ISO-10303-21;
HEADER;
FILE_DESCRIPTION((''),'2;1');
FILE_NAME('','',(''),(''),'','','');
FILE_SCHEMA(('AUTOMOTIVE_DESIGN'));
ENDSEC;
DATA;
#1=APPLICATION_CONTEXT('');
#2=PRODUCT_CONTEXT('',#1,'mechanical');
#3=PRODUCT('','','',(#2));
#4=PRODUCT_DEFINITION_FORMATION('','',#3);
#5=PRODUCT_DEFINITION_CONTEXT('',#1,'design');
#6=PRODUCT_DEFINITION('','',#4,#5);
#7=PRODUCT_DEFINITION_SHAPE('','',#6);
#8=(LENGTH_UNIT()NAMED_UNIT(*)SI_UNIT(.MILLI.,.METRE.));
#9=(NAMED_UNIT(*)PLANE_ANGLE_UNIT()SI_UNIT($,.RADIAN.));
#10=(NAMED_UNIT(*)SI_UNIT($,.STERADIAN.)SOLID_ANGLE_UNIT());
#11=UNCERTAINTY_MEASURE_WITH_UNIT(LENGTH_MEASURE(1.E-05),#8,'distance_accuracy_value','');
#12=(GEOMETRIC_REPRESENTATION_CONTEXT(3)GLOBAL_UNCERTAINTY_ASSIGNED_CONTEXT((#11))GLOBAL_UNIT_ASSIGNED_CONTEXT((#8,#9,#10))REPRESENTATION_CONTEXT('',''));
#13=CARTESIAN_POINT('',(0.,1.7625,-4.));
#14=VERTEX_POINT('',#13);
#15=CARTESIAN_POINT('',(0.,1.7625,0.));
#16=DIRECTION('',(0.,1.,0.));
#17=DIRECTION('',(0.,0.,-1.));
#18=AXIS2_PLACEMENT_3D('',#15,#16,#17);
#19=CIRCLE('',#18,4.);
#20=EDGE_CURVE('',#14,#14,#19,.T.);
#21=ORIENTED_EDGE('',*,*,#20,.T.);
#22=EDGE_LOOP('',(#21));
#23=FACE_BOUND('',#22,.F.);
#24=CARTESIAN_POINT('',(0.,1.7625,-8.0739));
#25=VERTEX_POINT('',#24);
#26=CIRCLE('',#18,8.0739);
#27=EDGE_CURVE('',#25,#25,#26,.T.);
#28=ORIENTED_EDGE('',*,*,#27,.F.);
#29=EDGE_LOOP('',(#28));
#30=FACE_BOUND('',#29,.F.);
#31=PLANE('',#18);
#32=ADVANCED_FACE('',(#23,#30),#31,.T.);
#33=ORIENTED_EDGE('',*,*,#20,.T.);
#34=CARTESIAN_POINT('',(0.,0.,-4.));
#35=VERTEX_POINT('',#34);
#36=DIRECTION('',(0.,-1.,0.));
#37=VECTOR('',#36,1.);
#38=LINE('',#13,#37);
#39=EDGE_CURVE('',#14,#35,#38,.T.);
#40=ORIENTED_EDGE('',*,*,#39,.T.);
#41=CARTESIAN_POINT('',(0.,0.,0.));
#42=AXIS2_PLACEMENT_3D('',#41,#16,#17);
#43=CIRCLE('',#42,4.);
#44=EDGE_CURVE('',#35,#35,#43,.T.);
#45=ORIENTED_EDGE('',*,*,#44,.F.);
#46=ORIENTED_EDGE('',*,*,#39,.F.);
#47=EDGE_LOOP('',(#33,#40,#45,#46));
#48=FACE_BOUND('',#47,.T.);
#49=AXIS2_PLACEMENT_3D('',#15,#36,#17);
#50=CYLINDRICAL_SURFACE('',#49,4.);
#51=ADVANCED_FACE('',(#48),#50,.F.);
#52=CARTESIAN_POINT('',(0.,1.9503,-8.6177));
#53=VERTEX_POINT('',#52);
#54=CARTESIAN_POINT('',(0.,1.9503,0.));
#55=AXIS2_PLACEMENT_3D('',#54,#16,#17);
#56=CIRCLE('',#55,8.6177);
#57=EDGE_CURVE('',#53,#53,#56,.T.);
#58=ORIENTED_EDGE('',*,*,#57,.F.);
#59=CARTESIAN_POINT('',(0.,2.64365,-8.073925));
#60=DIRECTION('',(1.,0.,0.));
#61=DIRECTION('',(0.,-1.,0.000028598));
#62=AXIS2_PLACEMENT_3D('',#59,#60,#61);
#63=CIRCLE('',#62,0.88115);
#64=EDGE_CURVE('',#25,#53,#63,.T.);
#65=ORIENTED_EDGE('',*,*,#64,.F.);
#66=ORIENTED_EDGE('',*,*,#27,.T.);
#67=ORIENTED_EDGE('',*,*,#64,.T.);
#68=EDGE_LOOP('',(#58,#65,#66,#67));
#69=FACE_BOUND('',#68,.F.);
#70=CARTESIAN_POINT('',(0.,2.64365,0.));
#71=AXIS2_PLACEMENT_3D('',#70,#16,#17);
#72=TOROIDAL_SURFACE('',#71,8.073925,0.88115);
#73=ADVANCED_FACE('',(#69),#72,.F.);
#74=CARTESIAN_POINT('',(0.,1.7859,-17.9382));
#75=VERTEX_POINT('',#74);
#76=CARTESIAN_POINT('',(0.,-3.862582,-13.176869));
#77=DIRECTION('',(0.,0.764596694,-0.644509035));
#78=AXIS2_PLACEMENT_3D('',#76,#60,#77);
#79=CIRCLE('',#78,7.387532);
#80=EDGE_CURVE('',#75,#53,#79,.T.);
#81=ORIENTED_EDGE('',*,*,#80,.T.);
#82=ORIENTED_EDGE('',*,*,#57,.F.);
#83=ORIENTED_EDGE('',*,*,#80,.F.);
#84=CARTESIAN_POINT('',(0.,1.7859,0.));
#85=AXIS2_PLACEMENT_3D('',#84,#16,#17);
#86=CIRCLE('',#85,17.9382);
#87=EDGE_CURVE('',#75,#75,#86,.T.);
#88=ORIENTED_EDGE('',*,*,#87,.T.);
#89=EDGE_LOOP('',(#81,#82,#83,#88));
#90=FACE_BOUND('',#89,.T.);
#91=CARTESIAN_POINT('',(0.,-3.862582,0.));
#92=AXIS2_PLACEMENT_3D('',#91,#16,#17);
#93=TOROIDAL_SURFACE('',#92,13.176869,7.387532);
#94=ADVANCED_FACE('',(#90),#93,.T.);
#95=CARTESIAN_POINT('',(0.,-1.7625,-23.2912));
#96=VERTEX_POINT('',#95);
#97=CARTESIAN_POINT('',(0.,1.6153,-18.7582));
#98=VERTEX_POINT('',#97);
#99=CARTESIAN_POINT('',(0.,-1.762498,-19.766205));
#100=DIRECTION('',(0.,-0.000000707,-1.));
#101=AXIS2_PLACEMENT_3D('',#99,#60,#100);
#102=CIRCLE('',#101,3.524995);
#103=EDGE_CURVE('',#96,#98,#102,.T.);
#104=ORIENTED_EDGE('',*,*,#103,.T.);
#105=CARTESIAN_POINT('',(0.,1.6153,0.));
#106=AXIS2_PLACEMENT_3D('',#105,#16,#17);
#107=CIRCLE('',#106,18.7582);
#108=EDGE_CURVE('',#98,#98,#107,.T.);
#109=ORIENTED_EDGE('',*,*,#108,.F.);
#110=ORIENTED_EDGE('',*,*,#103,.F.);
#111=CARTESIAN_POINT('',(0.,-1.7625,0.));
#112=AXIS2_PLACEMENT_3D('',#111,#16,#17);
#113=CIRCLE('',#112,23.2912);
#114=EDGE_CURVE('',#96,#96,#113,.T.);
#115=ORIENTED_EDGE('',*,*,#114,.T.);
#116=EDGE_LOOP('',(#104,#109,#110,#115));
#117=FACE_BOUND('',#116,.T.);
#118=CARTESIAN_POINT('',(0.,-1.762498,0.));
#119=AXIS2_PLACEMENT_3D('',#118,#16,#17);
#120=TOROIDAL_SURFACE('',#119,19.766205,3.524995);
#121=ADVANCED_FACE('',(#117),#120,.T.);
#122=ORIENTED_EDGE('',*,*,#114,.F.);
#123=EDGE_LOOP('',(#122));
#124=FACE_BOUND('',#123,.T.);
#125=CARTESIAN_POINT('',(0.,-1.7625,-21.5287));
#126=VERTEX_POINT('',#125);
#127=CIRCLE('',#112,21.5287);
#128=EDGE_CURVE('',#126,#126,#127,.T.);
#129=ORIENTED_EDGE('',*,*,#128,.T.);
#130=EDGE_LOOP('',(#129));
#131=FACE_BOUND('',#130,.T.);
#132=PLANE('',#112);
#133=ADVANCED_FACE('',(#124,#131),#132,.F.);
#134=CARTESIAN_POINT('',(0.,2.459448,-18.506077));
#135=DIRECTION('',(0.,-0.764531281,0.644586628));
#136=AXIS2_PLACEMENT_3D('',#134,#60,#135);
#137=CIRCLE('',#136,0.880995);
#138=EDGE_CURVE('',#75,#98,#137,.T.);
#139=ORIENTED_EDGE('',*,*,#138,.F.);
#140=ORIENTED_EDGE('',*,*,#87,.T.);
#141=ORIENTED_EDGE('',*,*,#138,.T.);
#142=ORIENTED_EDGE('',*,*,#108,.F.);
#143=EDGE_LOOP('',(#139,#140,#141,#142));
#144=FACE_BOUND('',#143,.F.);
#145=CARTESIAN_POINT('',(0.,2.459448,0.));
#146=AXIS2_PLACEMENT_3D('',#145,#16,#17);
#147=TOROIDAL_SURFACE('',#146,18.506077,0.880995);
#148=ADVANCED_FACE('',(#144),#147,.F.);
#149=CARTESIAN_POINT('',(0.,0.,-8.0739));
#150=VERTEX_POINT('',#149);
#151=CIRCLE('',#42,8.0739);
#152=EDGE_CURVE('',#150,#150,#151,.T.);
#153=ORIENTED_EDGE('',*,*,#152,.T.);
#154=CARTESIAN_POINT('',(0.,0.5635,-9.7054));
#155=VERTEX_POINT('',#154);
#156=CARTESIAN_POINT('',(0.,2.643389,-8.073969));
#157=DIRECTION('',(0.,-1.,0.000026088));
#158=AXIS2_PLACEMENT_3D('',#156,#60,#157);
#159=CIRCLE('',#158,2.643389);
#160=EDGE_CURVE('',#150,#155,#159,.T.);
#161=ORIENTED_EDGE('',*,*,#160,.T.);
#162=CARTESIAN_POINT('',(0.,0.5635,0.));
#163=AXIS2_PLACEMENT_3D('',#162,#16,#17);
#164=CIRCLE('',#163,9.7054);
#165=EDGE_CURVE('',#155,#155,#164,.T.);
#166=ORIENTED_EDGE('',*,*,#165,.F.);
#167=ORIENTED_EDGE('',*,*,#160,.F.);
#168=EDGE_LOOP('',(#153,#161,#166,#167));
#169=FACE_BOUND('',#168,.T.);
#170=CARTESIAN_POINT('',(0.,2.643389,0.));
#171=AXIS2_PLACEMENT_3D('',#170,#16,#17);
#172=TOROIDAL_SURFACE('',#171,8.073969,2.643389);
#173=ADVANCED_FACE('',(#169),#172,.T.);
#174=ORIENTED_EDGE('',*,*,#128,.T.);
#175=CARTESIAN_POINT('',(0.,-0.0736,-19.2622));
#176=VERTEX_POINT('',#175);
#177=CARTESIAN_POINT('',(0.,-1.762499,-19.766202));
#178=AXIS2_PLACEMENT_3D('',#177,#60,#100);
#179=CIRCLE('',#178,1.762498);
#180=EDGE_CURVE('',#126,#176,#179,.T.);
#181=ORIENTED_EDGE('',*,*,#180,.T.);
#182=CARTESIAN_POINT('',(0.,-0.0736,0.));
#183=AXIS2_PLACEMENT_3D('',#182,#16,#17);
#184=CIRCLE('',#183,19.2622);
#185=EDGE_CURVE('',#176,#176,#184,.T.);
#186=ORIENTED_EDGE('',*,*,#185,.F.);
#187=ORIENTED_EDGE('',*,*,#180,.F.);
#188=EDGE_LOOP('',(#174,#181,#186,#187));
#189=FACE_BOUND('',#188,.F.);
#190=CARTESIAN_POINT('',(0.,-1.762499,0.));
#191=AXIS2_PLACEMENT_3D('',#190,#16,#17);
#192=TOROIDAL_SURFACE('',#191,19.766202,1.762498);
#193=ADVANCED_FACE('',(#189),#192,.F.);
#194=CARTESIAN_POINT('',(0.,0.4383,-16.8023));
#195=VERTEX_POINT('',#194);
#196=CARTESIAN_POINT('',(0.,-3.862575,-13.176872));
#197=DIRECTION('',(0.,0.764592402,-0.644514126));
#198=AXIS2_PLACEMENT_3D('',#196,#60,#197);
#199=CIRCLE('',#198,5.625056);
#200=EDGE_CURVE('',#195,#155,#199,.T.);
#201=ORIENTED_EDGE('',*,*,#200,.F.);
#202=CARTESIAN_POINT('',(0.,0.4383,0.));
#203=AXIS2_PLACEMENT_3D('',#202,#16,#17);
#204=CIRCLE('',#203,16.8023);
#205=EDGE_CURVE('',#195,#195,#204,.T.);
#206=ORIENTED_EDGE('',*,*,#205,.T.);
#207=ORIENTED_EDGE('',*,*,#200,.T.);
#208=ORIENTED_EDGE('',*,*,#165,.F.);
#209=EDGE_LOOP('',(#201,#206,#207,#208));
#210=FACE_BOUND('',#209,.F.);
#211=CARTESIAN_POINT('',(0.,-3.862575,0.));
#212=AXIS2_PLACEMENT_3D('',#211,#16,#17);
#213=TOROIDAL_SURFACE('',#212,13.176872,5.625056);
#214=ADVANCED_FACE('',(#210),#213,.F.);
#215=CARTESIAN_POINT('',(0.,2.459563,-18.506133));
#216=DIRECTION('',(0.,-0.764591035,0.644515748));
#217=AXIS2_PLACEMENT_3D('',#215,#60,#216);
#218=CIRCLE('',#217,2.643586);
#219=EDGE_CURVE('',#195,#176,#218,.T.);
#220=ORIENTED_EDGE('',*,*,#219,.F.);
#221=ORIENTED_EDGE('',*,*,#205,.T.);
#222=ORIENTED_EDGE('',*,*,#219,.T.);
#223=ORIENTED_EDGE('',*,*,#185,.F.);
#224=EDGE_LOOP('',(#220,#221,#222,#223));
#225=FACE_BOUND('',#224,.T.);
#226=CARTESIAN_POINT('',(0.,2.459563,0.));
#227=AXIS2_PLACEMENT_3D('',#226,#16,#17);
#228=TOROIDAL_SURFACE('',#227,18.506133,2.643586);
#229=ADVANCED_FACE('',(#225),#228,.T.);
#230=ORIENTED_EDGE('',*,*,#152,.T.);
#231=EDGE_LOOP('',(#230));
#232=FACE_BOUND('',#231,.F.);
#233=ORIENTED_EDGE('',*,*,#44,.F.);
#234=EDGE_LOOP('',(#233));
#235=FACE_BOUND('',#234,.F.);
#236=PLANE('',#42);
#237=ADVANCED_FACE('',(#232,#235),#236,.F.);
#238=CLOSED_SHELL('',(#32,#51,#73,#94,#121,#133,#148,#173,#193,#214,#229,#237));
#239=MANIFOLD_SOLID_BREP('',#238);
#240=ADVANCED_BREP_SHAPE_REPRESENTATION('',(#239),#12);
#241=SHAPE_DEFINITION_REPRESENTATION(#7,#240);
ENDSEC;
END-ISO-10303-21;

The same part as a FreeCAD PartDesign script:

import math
import FreeCAD as App
import Part
import Sketcher

V = App.Vector

doc = App.newDocument("Part")
body = doc.addObject("PartDesign::Body", "Body")

# Sketch on YZ plane
sketch1 = body.newObject("Sketcher::SketchObject", "Sketch")
sketch1.AttachmentSupport = (doc.getObject("YZ_Plane"), [""])
sketch1.MapMode = "FlatFace"
sketch1.addGeometry([
    Part.LineSegment(V(1.7625, -8.0739, 0), V(1.7625, -4, 0)),  # 0
    Part.LineSegment(V(1.7625, -4, 0), V(0, -4, 0)),  # 1
    Part.LineSegment(V(0, -4, 0), V(0, -8.0739, 0)),  # 2
    Part.ArcOfCircle(Part.Circle(V(2.6438, -8.0739, 0), V(0, 0, 1), 2.6438), math.radians(180), math.radians(218.105738)),  # 3
    Part.ArcOfCircle(Part.Circle(V(-3.8625, -13.1769, 0), V(0, 0, 1), 5.624981), math.radians(-40.129531), math.radians(38.108598)),  # 4
    Part.ArcOfCircle(Part.Circle(V(2.4597, -18.5062, 0), V(0, 0, 1), 2.643735), math.radians(139.871434), math.radians(196.616418)),  # 5
    Part.ArcOfCircle(Part.Circle(V(-1.7625, -19.7662, 0), V(0, 0, 1), 1.7625), math.radians(-90), math.radians(16.616108)),  # 6
    Part.LineSegment(V(-1.7625, -21.5287, 0), V(-1.7625, -23.2912, 0)),  # 7
    Part.ArcOfCircle(Part.Circle(V(-1.7625, -19.7662, 0), V(0, 0, 1), 3.525), math.radians(-90), math.radians(16.616108)),  # 8
    Part.ArcOfCircle(Part.Circle(V(2.4597, -18.5062, 0), V(0, 0, 1), 0.881266), math.radians(139.869777), math.radians(196.617037)),  # 9
    Part.ArcOfCircle(Part.Circle(V(-3.8625, -13.1769, 0), V(0, 0, 1), 7.387449), math.radians(-40.129103), math.radians(38.108438)),  # 10
    Part.ArcOfCircle(Part.Circle(V(2.6438, -8.0739, 0), V(0, 0, 1), 0.8813), math.radians(180), math.radians(218.101358)),  # 11
], False)
sketch1.addConstraint([
    Sketcher.Constraint("Coincident", 0, 2, 1, 1),
    Sketcher.Constraint("Coincident", 1, 2, 2, 1),
    Sketcher.Constraint("Tangent", 2, 2, 3, 1),
    Sketcher.Constraint("Tangent", 3, 2, 4, 2),
    Sketcher.Constraint("Tangent", 4, 1, 5, 1),
    Sketcher.Constraint("Tangent", 5, 2, 6, 2),
    Sketcher.Constraint("Coincident", 6, 1, 7, 1),
    Sketcher.Constraint("Coincident", 7, 2, 8, 1),
    Sketcher.Constraint("Tangent", 8, 2, 9, 2),
    Sketcher.Constraint("Tangent", 9, 1, 10, 1),
    Sketcher.Constraint("Tangent", 10, 2, 11, 2),
    Sketcher.Constraint("Tangent", 11, 1, 0, 1),
    Sketcher.Constraint("Vertical", 0),
    Sketcher.Constraint("Horizontal", 1),
    Sketcher.Constraint("Vertical", 2),
    Sketcher.Constraint("Vertical", 7),
    Sketcher.Constraint("Coincident", 8, 3, 6, 3),
    Sketcher.Constraint("Coincident", 9, 3, 5, 3),
    Sketcher.Constraint("Coincident", 10, 3, 4, 3),
    Sketcher.Constraint("Coincident", 11, 3, 3, 3),
    Sketcher.Constraint("Equal", 3, 5),
    Sketcher.Constraint("PointOnObject", 1, 2, -2),
    Sketcher.Constraint("Vertical", 8, 3, 6, 1),
    Sketcher.Constraint("DistanceY", 0, 2, -1, 1, 4.0),
    Sketcher.Constraint("Radius", 4, 5.625),
    Sketcher.Constraint("Radius", 8, 3.525),
    Sketcher.Constraint("Radius", 6, 1.7625),
    Sketcher.Constraint("Radius", 9, 0.8813),
    Sketcher.Constraint("DistanceY", 4, 3, -1, 1, 13.177),
    Sketcher.Constraint("DistanceX", 4, 3, 0, 2, 5.625),
    Sketcher.Constraint("DistanceX", 6, 3, -1, 1, 1.7625),
    Sketcher.Constraint("DistanceY", 6, 1, -1, 1, 21.5287),
])
revolution = body.newObject("PartDesign::Revolution", "Revolution")
revolution.Profile = sketch1
revolution.ReferenceAxis = (sketch1, ["H_Axis"])
revolution.Angle = 360

doc.recompute()
